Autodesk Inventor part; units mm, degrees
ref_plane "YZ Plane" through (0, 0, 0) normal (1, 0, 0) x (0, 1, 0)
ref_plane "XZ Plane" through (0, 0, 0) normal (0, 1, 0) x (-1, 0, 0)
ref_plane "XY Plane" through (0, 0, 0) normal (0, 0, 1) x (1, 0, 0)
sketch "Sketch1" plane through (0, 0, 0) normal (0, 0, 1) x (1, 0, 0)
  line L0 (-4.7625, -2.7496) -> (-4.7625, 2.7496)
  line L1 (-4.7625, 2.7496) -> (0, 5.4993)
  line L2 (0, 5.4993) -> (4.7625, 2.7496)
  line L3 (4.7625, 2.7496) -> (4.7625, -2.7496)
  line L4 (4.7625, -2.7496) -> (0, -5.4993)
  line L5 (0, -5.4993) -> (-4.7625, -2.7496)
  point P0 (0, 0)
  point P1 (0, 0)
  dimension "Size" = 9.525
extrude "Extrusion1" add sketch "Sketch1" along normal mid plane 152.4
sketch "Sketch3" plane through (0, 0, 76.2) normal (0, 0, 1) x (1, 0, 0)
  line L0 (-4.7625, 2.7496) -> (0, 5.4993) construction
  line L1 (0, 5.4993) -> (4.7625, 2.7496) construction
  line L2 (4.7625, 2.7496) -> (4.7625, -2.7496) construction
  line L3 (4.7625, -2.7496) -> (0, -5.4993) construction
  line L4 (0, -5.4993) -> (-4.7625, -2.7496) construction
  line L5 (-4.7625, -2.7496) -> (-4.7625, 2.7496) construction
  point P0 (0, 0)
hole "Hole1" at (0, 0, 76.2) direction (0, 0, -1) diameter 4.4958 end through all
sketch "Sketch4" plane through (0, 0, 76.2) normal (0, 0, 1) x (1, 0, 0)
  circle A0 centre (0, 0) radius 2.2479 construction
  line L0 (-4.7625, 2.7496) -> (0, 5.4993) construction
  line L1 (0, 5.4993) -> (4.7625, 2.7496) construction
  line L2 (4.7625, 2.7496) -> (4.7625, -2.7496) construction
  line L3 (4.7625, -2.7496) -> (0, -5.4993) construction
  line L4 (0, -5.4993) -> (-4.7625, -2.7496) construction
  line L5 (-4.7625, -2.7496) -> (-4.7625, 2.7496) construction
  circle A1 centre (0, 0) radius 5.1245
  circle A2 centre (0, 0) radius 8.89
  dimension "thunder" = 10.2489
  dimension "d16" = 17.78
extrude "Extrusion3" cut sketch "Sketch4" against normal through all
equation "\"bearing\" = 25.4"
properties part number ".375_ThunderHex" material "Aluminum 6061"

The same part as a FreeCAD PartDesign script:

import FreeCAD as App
import Part
import Sketcher
Q = App.Units.Quantity


def add_polygon(sketch, points):
    """Adds a closed chain of lines whose ends are joined by coincident constraints."""
    first, n = sketch.GeometryCount, len(points)
    for a, b in zip(points, points[1:] + points[:1]):
        sketch.addGeometry(Part.LineSegment(App.Vector(*a, 0), App.Vector(*b, 0)), False)
    for i in range(n):
        sketch.addConstraint(Sketcher.Constraint("Coincident", first + i, 2, first + (i + 1) % n, 1))

doc = App.newDocument("Part")
params = doc.addObject("Spreadsheet::Sheet", "Params")
for row, (alias, value) in enumerate([
    ("pad1_length", "6 in"),
    ("sketch2_diameter", "0.177 in"),
    ("hole_diameter", "0.177 in"),
    ("sketch3_diameter", "0.7 in"),
], start=1):
    params.set(f"A{row}", alias)
    params.set(f"B{row}", "=" + value)
    params.setAlias(f"B{row}", alias)

body = doc.addObject("PartDesign::Body", "Body")

# Sketch on XY plane
sketch1 = doc.addObject("Sketcher::SketchObject", "Sketch")
body.addObject(sketch1)
sketch1.AttachmentSupport = (doc.XY_Plane, [""])
sketch1.MapMode = "FlatFace"
add_polygon(sketch1, [(-5, 3), (-5, -3), (0, -5), (5, -3), (5, 3), (0, 5)])  # lines 0-5
sketch1.addConstraint([
    Sketcher.Constraint("Vertical", 0),
    Sketcher.Constraint("Vertical", 3),
    Sketcher.Constraint("Symmetric", 0, 2, 3, 2, -1, 1),
    Sketcher.Constraint("Symmetric", 1, 2, 4, 2, -1, 1),
    Sketcher.Constraint("PointOnObject", 1, 2, -2),
    Sketcher.Constraint("Parallel", 2, 5),
    Sketcher.Constraint("Horizontal", 0, 2, 2, 2),
    Sketcher.Constraint("Angle", 1, Q("-30.0006 deg")),
    Sketcher.Constraint("DistanceX", 0, 2, 2, 2, Q("0.375 in")),
    Sketcher.Constraint("DistanceY", 0, 2, 0, 1, Q("0.2165 in")),
])
pad1 = doc.addObject("PartDesign::Pad", "Pad")
body.addObject(pad1)
pad1.Profile = sketch1
pad1.setExpression("Length", "Params.pad1_length")
pad1.Midplane = True

# Sketch on XY plane
sketch2 = doc.addObject("Sketcher::SketchObject", "Sketch001")
body.addObject(sketch2)
sketch2.AttachmentSupport = (doc.XY_Plane, [""])
sketch2.MapMode = "FlatFace"
sketch2.AttachmentOffset = App.Placement(App.Vector(0, 0, 3 * 25.4), App.Rotation())
sketch2.addGeometry(Part.Circle(App.Vector(0, 0, 0), App.Vector(0, 0, 1), 2.2), False)
sketch2.addConstraint([
    Sketcher.Constraint("Coincident", 0, 3, -1, 1),
    Sketcher.Constraint("Diameter", 0, Q("0.177 in")),
])
sketch2.setExpression("Constraints[1]", "Params.sketch2_diameter")
doc.recompute()
hole = doc.addObject("PartDesign::Hole", "Hole")
body.addObject(hole)
hole.Profile = sketch2
hole.ThreadType = "None"
hole.setExpression("Diameter", "Params.hole_diameter")
hole.DepthType = "ThroughAll"

# Sketch on XY plane
sketch3 = doc.addObject("Sketcher::SketchObject", "Sketch002")
body.addObject(sketch3)
sketch3.AttachmentSupport = (doc.XY_Plane, [""])
sketch3.MapMode = "FlatFace"
sketch3.AttachmentOffset = App.Placement(App.Vector(0, 0, 3 * 25.4), App.Rotation())
sketch3.addGeometry([
    Part.Circle(App.Vector(0, 0, 0), App.Vector(0, 0, 1), 9),
    Part.Circle(App.Vector(0, 0, 0), App.Vector(0, 0, 1), 5),
], False)
sketch3.addConstraint([
    Sketcher.Constraint("Coincident", 0, 3, -1, 1),
    Sketcher.Constraint("Coincident", 1, 3, -1, 1),
    Sketcher.Constraint("Diameter", 0, Q("0.7 in")),
    Sketcher.Constraint("Diameter", 1, Q("0.4035 in")),
])
sketch3.setExpression("Constraints[2]", "Params.sketch3_diameter")
pocket1 = doc.addObject("PartDesign::Pocket", "Pocket")
body.addObject(pocket1)
pocket1.Profile = sketch3
pocket1.Type = "ThroughAll"

doc.recompute()
